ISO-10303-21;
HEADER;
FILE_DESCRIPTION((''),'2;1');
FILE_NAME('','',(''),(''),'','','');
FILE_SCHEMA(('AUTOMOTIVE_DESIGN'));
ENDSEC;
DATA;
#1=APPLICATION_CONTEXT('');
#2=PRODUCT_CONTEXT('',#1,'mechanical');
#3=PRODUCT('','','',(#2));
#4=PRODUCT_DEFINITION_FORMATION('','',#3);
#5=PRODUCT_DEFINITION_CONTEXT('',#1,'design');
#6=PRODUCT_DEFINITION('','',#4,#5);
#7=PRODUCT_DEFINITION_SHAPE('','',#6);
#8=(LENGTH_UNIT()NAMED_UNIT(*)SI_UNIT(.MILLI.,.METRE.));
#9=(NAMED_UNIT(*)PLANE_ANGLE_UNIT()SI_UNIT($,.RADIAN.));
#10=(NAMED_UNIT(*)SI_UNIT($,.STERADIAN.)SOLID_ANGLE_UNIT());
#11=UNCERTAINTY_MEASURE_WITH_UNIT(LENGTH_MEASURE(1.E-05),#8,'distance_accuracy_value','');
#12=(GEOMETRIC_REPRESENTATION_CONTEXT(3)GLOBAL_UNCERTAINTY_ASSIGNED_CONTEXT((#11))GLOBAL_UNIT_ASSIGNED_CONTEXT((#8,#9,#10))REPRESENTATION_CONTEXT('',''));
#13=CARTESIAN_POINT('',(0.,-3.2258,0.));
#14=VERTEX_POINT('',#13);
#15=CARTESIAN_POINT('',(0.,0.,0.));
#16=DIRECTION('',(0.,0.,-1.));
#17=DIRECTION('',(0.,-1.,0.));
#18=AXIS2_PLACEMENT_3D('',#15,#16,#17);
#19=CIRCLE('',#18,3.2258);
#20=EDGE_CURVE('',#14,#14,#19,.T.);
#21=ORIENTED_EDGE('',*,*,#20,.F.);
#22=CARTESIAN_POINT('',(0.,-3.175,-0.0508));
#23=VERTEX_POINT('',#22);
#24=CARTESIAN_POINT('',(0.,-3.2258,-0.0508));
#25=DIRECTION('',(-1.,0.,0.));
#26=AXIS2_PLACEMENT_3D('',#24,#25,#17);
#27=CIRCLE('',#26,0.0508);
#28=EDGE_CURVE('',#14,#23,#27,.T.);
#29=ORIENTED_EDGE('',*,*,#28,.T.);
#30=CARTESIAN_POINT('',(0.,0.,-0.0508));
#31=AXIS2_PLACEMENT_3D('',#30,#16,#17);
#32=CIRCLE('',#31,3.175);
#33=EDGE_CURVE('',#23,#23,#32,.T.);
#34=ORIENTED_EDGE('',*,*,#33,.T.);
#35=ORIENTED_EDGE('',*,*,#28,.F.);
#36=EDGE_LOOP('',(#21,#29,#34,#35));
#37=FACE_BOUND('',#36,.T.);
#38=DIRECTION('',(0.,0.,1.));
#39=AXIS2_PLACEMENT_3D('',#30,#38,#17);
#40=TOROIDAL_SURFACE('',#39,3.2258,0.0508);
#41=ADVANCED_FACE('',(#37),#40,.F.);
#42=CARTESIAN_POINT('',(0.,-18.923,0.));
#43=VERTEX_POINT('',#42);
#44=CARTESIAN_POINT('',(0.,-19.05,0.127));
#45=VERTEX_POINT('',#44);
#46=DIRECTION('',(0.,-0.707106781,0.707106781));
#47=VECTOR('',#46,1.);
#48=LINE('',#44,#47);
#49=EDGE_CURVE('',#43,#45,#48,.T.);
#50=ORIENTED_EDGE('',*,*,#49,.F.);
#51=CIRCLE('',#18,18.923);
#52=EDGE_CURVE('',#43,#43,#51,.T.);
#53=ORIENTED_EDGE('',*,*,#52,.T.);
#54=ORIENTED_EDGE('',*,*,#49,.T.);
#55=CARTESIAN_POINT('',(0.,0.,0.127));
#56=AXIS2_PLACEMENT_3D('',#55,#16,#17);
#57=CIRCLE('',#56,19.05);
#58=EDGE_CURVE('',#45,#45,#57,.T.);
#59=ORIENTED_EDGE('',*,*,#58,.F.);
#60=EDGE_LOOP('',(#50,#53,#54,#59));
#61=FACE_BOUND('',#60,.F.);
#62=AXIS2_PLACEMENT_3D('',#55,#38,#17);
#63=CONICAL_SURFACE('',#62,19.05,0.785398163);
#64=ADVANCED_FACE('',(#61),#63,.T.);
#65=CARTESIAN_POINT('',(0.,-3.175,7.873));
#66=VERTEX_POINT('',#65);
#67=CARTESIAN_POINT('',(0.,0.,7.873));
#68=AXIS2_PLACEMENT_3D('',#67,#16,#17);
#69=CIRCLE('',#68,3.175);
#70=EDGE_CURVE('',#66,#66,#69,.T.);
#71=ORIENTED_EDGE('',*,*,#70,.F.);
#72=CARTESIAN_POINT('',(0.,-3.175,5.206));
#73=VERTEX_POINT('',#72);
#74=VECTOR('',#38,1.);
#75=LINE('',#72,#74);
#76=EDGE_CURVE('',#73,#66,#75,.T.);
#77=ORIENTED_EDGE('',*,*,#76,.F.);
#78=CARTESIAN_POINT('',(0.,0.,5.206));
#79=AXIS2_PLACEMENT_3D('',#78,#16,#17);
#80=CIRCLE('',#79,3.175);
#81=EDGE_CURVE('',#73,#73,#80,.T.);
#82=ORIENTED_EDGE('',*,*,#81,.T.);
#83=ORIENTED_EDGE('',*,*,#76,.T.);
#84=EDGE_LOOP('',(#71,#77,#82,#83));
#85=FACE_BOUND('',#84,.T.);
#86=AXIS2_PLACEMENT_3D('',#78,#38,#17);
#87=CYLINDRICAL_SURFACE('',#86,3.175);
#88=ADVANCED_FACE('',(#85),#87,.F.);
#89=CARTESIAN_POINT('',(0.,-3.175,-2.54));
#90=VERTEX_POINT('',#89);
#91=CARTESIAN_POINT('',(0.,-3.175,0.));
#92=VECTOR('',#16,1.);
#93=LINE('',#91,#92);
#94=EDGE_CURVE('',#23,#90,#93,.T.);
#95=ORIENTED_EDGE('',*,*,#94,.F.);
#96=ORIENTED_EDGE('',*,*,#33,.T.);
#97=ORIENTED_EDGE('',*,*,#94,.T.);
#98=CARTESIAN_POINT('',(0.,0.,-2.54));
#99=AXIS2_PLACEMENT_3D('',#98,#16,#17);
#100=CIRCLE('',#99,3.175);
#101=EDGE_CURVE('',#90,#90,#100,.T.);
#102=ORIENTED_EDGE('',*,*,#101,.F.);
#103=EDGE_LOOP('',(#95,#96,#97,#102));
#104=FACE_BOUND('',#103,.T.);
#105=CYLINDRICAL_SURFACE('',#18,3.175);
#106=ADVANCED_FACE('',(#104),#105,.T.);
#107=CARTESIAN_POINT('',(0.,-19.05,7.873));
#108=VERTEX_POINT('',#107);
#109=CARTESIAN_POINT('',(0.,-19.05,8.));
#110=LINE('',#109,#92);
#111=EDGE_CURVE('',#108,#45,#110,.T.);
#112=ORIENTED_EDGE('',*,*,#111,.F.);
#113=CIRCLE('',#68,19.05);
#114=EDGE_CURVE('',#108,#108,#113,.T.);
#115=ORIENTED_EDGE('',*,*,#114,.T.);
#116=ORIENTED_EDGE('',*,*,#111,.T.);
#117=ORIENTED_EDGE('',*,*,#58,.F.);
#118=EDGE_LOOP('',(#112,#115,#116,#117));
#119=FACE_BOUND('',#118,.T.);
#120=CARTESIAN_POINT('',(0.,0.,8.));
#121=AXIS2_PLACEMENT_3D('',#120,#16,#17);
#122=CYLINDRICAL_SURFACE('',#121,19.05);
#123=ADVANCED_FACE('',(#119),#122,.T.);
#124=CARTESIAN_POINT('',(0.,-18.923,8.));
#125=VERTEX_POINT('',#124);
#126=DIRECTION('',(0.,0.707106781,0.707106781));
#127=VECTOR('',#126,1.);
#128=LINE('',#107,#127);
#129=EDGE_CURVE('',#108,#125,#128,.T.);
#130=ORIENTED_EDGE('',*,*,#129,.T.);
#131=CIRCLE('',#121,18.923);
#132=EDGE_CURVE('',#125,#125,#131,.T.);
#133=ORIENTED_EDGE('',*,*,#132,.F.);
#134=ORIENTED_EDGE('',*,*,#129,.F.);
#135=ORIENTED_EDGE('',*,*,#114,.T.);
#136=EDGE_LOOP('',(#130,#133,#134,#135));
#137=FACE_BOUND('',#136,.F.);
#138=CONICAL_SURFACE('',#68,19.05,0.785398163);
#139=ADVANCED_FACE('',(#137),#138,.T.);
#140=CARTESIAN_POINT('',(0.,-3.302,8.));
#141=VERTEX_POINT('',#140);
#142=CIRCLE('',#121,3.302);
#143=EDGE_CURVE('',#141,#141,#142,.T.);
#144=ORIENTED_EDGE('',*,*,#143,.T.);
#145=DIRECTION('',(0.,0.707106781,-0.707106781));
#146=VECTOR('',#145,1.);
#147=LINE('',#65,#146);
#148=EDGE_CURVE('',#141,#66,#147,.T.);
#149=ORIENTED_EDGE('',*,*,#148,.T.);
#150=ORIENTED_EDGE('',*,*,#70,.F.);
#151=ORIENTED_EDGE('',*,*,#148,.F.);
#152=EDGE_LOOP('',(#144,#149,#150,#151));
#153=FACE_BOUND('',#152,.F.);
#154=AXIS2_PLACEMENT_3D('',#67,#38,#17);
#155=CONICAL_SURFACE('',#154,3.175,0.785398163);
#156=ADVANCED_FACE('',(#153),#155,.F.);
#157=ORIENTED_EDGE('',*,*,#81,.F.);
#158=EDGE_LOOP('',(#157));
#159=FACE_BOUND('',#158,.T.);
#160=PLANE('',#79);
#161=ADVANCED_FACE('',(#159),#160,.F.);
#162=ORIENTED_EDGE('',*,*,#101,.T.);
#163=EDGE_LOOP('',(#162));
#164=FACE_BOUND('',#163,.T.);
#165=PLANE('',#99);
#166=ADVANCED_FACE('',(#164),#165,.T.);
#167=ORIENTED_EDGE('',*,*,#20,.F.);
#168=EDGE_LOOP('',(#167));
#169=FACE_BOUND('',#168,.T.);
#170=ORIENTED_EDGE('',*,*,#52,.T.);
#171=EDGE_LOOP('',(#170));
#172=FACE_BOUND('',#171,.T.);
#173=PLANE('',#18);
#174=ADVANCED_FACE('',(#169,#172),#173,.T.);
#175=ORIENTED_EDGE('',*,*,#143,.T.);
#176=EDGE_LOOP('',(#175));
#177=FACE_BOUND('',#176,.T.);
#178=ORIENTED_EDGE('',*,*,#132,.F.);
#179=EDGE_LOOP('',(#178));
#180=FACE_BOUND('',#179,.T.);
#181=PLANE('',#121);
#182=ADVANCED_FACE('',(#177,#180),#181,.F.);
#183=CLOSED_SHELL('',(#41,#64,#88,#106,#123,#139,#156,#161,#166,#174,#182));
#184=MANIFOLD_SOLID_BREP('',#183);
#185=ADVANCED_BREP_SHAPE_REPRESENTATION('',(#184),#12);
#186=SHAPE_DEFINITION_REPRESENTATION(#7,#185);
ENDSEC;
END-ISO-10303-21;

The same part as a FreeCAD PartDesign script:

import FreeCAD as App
import Part
import Sketcher
Q = App.Units.Quantity


def edges_at(feature, points):
    """Names of the edges that pass closest to the given points."""
    edges = feature.Shape.Edges
    near = lambda p: min(range(len(edges)), key=lambda i: edges[i].distToShape(Part.Vertex(*p))[0])
    return sorted({f"Edge{near(p) + 1}" for p in points})


def add_polygon(sketch, points):
    """Adds a closed chain of lines whose ends are joined by coincident constraints."""
    first, n = sketch.GeometryCount, len(points)
    for a, b in zip(points, points[1:] + points[:1]):
        sketch.addGeometry(Part.LineSegment(App.Vector(*a, 0), App.Vector(*b, 0)), False)
    for i in range(n):
        sketch.addConstraint(Sketcher.Constraint("Coincident", first + i, 2, first + (i + 1) % n, 1))

doc = App.newDocument("Part")
body = doc.addObject("PartDesign::Body", "Body")

sketch1 = body.newObject("Sketcher::SketchObject", "Sketch")
sketch1.AttachmentSupport = (doc.getObject("YZ_Plane"), [""])
sketch1.MapMode = "FlatFace"
add_polygon(sketch1, [(-3.2, -2.5), (0, -2.5), (0, 5.2), (-3.2, 5.2), (-3.2, 8), (-19.1, 8), (-19.1, 0), (-3.2, 0)])
sketch1.addConstraint([
    Sketcher.Constraint("Horizontal", 0),
    Sketcher.Constraint("Vertical", 1),
    Sketcher.Constraint("Horizontal", 2),
    Sketcher.Constraint("Vertical", 3),
    Sketcher.Constraint("Horizontal", 4),
    Sketcher.Constraint("Vertical", 5),
    Sketcher.Constraint("Horizontal", 6),
    Sketcher.Constraint("Vertical", 7),
    Sketcher.Constraint("PointOnObject", 0, 2, -2),
    Sketcher.Constraint("PointOnObject", 5, 2, -1),
    Sketcher.Constraint("Vertical", 3, 2, 6, 2),
    Sketcher.Constraint("DistanceY", 7, 2, 7, 1, Q("0.1 in")),
    Sketcher.Constraint("DistanceY", 3, 1, 3, 2, Q("0.11 in")),
    Sketcher.Constraint("DistanceX", 0, 1, 0, 2, Q("0.125 in")),
    Sketcher.Constraint("DistanceX", 4, 2, 4, 1, Q("0.625 in")),
    Sketcher.Constraint("DistanceY", 1, 1, 1, 2, Q("7.746 mm")),
])
revolution = body.newObject("PartDesign::Revolution", "Revolution")
revolution.Profile = sketch1
revolution.ReferenceAxis = (sketch1, ["V_Axis"])
revolution.Angle = 360
doc.recompute()

fillet = body.newObject("PartDesign::Fillet", "Fillet")
fillet.Base = (revolution, edges_at(revolution, [(0, 3.175, 0)]))
fillet.Radius = Q("0.002 in")
doc.recompute()

chamfer = body.newObject("PartDesign::Chamfer", "Chamfer")
chamfer.Base = (fillet, edges_at(fillet, [(0, 19.05, 0), (0, 19.05, 8), (0, 3.175, 8)]))
chamfer.Size = Q("0.005 in")

doc.recompute()
